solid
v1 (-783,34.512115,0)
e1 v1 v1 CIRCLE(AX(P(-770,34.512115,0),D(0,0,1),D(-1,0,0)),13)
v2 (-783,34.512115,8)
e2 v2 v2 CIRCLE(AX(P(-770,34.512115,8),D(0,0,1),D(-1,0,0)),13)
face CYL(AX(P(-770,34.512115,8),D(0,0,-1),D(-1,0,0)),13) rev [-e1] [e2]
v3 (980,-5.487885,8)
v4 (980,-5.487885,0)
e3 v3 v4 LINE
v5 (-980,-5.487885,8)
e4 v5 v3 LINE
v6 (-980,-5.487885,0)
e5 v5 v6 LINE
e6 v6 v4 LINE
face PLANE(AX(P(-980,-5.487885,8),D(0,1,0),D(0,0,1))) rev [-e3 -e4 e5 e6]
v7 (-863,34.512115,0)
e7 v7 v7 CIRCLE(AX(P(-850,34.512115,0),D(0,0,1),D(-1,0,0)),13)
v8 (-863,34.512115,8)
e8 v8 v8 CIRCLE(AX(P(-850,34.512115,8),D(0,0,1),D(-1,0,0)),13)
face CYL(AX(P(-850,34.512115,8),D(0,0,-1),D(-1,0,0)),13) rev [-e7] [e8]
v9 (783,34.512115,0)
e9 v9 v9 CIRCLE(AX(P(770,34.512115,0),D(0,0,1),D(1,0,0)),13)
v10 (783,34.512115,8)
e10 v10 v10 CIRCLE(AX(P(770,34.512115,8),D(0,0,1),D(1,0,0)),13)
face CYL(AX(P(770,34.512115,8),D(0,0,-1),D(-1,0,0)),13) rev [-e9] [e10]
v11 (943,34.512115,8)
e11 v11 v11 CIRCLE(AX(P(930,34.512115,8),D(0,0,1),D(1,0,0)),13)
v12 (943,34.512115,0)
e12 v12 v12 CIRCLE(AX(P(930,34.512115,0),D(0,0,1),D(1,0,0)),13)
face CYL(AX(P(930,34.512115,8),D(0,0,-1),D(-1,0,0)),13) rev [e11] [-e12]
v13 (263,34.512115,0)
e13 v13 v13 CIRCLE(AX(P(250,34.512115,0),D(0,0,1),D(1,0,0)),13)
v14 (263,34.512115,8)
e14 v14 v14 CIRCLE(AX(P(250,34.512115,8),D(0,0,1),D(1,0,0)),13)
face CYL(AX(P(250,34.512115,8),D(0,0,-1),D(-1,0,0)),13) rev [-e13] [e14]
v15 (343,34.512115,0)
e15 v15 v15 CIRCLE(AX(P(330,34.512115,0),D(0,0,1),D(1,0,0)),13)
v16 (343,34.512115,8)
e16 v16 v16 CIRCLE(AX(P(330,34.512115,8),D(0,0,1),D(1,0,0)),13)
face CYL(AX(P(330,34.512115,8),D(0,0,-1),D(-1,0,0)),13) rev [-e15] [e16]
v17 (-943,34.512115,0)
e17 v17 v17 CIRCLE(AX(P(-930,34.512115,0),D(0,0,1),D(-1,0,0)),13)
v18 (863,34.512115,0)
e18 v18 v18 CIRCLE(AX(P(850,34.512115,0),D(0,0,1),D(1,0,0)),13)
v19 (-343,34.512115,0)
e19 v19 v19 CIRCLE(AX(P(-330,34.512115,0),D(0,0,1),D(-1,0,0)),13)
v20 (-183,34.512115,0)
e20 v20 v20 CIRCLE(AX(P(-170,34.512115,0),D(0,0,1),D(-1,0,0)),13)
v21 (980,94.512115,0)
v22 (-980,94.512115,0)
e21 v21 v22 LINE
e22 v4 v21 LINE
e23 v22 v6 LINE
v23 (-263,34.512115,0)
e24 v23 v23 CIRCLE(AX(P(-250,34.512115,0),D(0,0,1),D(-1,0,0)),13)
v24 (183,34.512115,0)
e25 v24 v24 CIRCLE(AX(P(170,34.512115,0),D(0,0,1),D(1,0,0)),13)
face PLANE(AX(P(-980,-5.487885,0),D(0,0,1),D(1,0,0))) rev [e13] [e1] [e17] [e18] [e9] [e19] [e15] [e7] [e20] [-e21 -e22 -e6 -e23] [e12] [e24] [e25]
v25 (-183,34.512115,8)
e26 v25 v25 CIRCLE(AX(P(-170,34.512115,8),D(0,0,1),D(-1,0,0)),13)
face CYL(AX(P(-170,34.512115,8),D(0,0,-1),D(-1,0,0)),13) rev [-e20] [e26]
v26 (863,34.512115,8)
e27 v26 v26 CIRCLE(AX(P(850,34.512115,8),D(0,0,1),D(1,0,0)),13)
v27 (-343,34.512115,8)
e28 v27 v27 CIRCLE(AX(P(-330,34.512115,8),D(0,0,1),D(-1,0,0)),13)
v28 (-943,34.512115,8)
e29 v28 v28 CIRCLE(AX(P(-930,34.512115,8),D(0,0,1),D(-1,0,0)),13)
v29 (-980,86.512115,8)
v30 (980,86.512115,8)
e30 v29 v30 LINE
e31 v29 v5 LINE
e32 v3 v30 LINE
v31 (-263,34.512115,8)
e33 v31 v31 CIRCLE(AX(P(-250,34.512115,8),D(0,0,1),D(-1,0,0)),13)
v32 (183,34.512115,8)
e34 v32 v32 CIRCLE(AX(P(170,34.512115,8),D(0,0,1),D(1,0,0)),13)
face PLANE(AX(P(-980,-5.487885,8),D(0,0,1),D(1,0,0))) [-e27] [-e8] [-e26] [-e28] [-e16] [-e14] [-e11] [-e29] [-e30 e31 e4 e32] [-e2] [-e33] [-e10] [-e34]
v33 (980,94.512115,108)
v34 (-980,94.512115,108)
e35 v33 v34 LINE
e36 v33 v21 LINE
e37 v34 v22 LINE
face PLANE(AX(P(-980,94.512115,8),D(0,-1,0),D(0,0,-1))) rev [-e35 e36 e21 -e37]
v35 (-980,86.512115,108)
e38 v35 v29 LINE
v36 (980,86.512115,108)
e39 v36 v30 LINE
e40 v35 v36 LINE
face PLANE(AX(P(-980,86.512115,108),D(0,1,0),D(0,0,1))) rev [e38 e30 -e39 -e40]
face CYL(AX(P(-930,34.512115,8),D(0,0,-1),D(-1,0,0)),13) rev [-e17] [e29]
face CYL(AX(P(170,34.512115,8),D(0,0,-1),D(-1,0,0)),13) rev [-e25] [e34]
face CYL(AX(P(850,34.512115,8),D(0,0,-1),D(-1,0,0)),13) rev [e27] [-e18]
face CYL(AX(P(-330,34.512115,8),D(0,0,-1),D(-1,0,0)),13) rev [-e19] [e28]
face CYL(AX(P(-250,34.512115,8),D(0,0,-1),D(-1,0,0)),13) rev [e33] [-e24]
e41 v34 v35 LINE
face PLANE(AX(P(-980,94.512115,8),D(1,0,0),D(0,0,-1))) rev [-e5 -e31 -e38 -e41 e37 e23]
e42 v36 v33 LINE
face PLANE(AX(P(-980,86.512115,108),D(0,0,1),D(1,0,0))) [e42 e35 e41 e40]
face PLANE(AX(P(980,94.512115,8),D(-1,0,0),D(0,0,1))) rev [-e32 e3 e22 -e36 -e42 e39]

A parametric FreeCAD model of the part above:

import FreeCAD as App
import Part
import Sketcher


def add_polygon(sketch, points):
    """Adds a closed chain of lines whose ends are joined by coincident constraints."""
    first, n = sketch.GeometryCount, len(points)
    for a, b in zip(points, points[1:] + points[:1]):
        sketch.addGeometry(Part.LineSegment(App.Vector(*a, 0), App.Vector(*b, 0)), False)
    for i in range(n):
        sketch.addConstraint(Sketcher.Constraint("Coincident", first + i, 2, first + (i + 1) % n, 1))

doc = App.newDocument("Part")
params = doc.addObject("Spreadsheet::Sheet", "Params")
for row, (alias, value) in enumerate([
    ("sketch1_diameter", "26 mm"),
    ("sketch1_width", "1960 mm"),
    ("sketch1_height", "100 mm"),
    ("pad1_length", "8 mm"),
    ("sketch2_width", "1960 mm"),
    ("sketch2_height", "8 mm"),
    ("pad2_length", "100 mm"),
], start=1):
    params.set(f"A{row}", alias)
    params.set(f"B{row}", "=" + value)
    params.setAlias(f"B{row}", alias)

body = doc.addObject("PartDesign::Body", "Body")

# Sketch on XY plane
sketch1 = body.newObject("Sketcher::SketchObject", "Sketch")
sketch1.AttachmentSupport = (doc.getObject("XY_Plane"), [""])
sketch1.MapMode = "FlatFace"
add_polygon(sketch1, [(-980, 95), (-980, -5), (980, -5), (980, 95)])  # lines 0-3
sketch1.addGeometry(Part.Circle(App.Vector(-930, 35, 0), App.Vector(0, 0, 1), 13), False)  # 4
sketch1.addGeometry(Part.Circle(App.Vector(-850, 35, 0), App.Vector(0, 0, 1), 13), False)  # 5
sketch1.addGeometry(Part.Circle(App.Vector(-770, 35, 0), App.Vector(0, 0, 1), 13), False)  # 6
sketch1.addGeometry(Part.Circle(App.Vector(-330, 35, 0), App.Vector(0, 0, 1), 13), False)  # 7
sketch1.addGeometry(Part.Circle(App.Vector(-250, 35, 0), App.Vector(0, 0, 1), 13), False)  # 8
sketch1.addGeometry(Part.Circle(App.Vector(-170, 35, 0), App.Vector(0, 0, 1), 13), False)  # 9
sketch1.addGeometry(Part.Circle(App.Vector(170, 35, 0), App.Vector(0, 0, 1), 13), False)  # 10
sketch1.addGeometry(Part.Circle(App.Vector(250, 35, 0), App.Vector(0, 0, 1), 13), False)  # 11
sketch1.addGeometry(Part.Circle(App.Vector(330, 35, 0), App.Vector(0, 0, 1), 13), False)  # 12
sketch1.addGeometry(Part.Circle(App.Vector(770, 35, 0), App.Vector(0, 0, 1), 13), False)  # 13
sketch1.addGeometry(Part.Circle(App.Vector(850, 35, 0), App.Vector(0, 0, 1), 13), False)  # 14
sketch1.addGeometry(Part.Circle(App.Vector(930, 35, 0), App.Vector(0, 0, 1), 13), False)  # 15
sketch1.addConstraint([
    Sketcher.Constraint("Vertical", 0),
    Sketcher.Constraint("Horizontal", 1),
    Sketcher.Constraint("Vertical", 2),
    Sketcher.Constraint("Horizontal", 3),
    Sketcher.Constraint("Equal", 4, 5),
    Sketcher.Constraint("Equal", 5, 6),
    Sketcher.Constraint("Equal", 6, 7),
    Sketcher.Constraint("Equal", 7, 8),
    Sketcher.Constraint("Equal", 8, 9),
    Sketcher.Constraint("Equal", 9, 10),
    Sketcher.Constraint("Equal", 10, 11),
    Sketcher.Constraint("Equal", 11, 12),
    Sketcher.Constraint("Equal", 12, 13),
    Sketcher.Constraint("Equal", 13, 14),
    Sketcher.Constraint("Equal", 14, 15),
    Sketcher.Constraint("Symmetric", 9, 3, 10, 3, -2),
    Sketcher.Constraint("Symmetric", 8, 3, 11, 3, -2),
    Sketcher.Constraint("Symmetric", 7, 3, 12, 3, -2),
    Sketcher.Constraint("Symmetric", 6, 3, 13, 3, -2),
    Sketcher.Constraint("Symmetric", 5, 3, 14, 3, -2),
    Sketcher.Constraint("Symmetric", 4, 3, 15, 3, -2),
    Sketcher.Constraint("Horizontal", 4, 3, 5, 3),
    Sketcher.Constraint("Horizontal", 5, 3, 6, 3),
    Sketcher.Constraint("Horizontal", 6, 3, 7, 3),
    Sketcher.Constraint("Horizontal", 7, 3, 8, 3),
    Sketcher.Constraint("Horizontal", 8, 3, 9, 3),
    Sketcher.Constraint("Diameter", 4, 26.0),
    Sketcher.Constraint("DistanceX", 1, 1, 1, 2, 1960.0),
    Sketcher.Constraint("DistanceY", 0, 2, 0, 1, 100.0),
    Sketcher.Constraint("DistanceX", 4, 3, -1, 1, 930.0),
    Sketcher.Constraint("DistanceX", 5, 3, -1, 1, 850.0),
    Sketcher.Constraint("DistanceX", 6, 3, -1, 1, 770.0),
    Sketcher.Constraint("DistanceX", 7, 3, -1, 1, 330.0),
    Sketcher.Constraint("DistanceX", 8, 3, -1, 1, 250.0),
    Sketcher.Constraint("DistanceX", 9, 3, -1, 1, 170.0),
    Sketcher.Constraint("DistanceX", 0, 2, -1, 1, 980.0),
    Sketcher.Constraint("DistanceY", 0, 2, 4, 3, 40.0),
    Sketcher.Constraint("DistanceY", -1, 1, 4, 3, 34.512115),
])
sketch1.setExpression("Constraints[30]", "Params.sketch1_diameter")
sketch1.setExpression("Constraints[31]", "Params.sketch1_width")
sketch1.setExpression("Constraints[32]", "Params.sketch1_height")
pad1 = body.newObject("PartDesign::Pad", "Pad")
pad1.Profile = sketch1
pad1.setExpression("Length", "Params.pad1_length")

# Sketch on XY plane
sketch2 = body.newObject("Sketcher::SketchObject", "Sketch001")
sketch2.AttachmentSupport = (doc.getObject("XY_Plane"), [""])
sketch2.MapMode = "FlatFace"
sketch2.AttachmentOffset = App.Placement(App.Vector(0, 0, 8), App.Rotation())
add_polygon(sketch2, [(-980, 95), (-980, 87), (980, 87), (980, 95)])  # lines 0-3
sketch2.addConstraint([
    Sketcher.Constraint("Vertical", 0),
    Sketcher.Constraint("Horizontal", 1),
    Sketcher.Constraint("Vertical", 2),
    Sketcher.Constraint("Horizontal", 3),
    Sketcher.Constraint("DistanceX", 1, 1, 1, 2, 1960.0),
    Sketcher.Constraint("DistanceY", 0, 2, 0, 1, 8.0),
    Sketcher.Constraint("DistanceX", 0, 2, -1, 1, 980.0),
    Sketcher.Constraint("DistanceY", -1, 1, 0, 2, 86.512115),
])
sketch2.setExpression("Constraints[8]", "Params.sketch2_width")
sketch2.setExpression("Constraints[9]", "Params.sketch2_height")
pad2 = body.newObject("PartDesign::Pad", "Pad001")
pad2.Profile = sketch2
pad2.setExpression("Length", "Params.pad2_length")

doc.recompute()
